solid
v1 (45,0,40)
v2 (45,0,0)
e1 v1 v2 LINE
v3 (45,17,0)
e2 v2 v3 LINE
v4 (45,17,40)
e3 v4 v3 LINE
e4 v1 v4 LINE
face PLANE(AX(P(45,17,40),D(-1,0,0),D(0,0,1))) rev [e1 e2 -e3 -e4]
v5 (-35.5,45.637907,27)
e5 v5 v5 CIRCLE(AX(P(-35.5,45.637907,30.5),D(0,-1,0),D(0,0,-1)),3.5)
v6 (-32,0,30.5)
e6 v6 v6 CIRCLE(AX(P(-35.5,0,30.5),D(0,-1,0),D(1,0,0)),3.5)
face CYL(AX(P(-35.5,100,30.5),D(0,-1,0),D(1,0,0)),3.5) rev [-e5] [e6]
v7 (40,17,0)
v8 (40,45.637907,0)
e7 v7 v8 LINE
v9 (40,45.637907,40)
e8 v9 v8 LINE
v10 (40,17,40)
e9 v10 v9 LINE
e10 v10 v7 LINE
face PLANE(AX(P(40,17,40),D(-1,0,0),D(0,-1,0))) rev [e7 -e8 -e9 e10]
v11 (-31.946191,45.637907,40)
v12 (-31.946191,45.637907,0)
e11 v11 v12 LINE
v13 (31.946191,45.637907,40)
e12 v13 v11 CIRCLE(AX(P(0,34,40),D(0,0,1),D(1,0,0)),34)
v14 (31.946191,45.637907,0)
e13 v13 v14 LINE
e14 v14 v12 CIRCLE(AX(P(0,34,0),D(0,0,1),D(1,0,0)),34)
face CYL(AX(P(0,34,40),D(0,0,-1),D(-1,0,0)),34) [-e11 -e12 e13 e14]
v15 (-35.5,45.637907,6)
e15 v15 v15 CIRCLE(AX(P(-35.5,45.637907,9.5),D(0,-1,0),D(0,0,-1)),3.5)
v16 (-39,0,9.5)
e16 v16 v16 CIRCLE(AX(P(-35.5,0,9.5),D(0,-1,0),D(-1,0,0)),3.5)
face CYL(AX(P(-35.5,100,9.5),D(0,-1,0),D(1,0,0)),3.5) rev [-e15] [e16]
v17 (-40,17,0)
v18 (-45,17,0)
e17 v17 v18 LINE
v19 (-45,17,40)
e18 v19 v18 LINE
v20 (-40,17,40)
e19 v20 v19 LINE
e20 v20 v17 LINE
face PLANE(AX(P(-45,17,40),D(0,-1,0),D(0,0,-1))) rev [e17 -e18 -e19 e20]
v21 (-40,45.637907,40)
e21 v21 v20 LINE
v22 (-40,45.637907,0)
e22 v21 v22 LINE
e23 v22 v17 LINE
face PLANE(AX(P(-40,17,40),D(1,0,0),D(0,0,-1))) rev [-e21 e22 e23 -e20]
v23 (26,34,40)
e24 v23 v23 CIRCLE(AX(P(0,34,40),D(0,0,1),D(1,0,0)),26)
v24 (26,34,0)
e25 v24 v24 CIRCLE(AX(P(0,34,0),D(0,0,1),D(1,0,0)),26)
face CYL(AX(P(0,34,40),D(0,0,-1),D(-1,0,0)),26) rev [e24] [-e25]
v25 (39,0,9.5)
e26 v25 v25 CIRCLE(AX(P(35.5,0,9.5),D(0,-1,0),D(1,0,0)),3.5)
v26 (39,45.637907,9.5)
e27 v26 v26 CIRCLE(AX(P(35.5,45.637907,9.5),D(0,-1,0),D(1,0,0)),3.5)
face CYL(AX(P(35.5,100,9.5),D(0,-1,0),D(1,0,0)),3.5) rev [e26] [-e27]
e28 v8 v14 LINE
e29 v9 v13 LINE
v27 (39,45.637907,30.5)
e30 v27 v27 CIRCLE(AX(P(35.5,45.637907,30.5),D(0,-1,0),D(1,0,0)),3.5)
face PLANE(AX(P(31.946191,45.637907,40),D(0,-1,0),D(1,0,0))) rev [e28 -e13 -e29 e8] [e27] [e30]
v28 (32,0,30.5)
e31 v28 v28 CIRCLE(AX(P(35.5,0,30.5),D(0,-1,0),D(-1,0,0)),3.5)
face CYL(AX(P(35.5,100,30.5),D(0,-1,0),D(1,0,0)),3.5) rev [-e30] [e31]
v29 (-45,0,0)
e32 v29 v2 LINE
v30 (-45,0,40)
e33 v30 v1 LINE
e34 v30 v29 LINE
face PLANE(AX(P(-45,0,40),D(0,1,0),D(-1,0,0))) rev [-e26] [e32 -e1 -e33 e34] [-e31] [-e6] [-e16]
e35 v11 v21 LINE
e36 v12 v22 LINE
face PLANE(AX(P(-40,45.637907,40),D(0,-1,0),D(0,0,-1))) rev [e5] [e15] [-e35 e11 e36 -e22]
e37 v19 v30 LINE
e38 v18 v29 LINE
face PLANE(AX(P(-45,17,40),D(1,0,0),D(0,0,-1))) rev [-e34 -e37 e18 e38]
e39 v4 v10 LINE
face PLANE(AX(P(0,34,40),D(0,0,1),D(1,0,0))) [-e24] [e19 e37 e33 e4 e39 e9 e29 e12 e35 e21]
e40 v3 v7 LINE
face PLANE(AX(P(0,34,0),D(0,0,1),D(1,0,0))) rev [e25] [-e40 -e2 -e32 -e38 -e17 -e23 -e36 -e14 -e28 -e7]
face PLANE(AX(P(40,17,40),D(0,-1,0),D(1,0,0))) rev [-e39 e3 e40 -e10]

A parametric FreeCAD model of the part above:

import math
import FreeCAD as App
import Part
import Sketcher

doc = App.newDocument("Part")
body = doc.addObject("PartDesign::Body", "Body")

# Sketch on XY plane
sketch1 = doc.addObject("Sketcher::SketchObject", "Sketch")
body.addObject(sketch1)
sketch1.AttachmentSupport = (doc.XY_Plane, [""])
sketch1.MapMode = "FlatFace"
sketch1.addGeometry([
    Part.LineSegment(App.Vector(45, 17, 0), App.Vector(40, 17, 0)),  # 0
    Part.LineSegment(App.Vector(40, 17, 0), App.Vector(40, 46, 0)),  # 1
    Part.LineSegment(App.Vector(40, 46, 0), App.Vector(32, 46, 0)),  # 2
    Part.ArcOfCircle(Part.Circle(App.Vector(0, 34, 0), App.Vector(0, 0, 1), 34), math.radians(20), math.radians(160)),  # 3
    Part.LineSegment(App.Vector(-32, 46, 0), App.Vector(-40, 46, 0)),  # 4
    Part.LineSegment(App.Vector(-40, 46, 0), App.Vector(-40, 17, 0)),  # 5
    Part.LineSegment(App.Vector(-40, 17, 0), App.Vector(-45, 17, 0)),  # 6
    Part.LineSegment(App.Vector(-45, 17, 0), App.Vector(-45, 0, 0)),  # 7
    Part.LineSegment(App.Vector(-45, 0, 0), App.Vector(45, 0, 0)),  # 8
    Part.LineSegment(App.Vector(45, 0, 0), App.Vector(45, 17, 0)),  # 9
    Part.Circle(App.Vector(0, 34, 0), App.Vector(0, 0, 1), 26),  # 10
], False)
sketch1.addConstraint([
    Sketcher.Constraint("Coincident", 0, 2, 1, 1),
    Sketcher.Constraint("Coincident", 1, 2, 2, 1),
    Sketcher.Constraint("Coincident", 2, 2, 3, 1),
    Sketcher.Constraint("Coincident", 3, 2, 4, 1),
    Sketcher.Constraint("Coincident", 4, 2, 5, 1),
    Sketcher.Constraint("Coincident", 5, 2, 6, 1),
    Sketcher.Constraint("Coincident", 6, 2, 7, 1),
    Sketcher.Constraint("Coincident", 7, 2, 8, 1),
    Sketcher.Constraint("Coincident", 8, 2, 9, 1),
    Sketcher.Constraint("Coincident", 9, 2, 0, 1),
    Sketcher.Constraint("Horizontal", 0),
    Sketcher.Constraint("Vertical", 1),
    Sketcher.Constraint("Horizontal", 2),
    Sketcher.Constraint("Horizontal", 4),
    Sketcher.Constraint("Vertical", 5),
    Sketcher.Constraint("Horizontal", 6),
    Sketcher.Constraint("Vertical", 7),
    Sketcher.Constraint("Horizontal", 8),
    Sketcher.Constraint("Vertical", 9),
    Sketcher.Constraint("Coincident", 10, 3, 3, 3),
    Sketcher.Constraint("Symmetric", 7, 2, 8, 2, -1, 1),
    Sketcher.Constraint("Symmetric", 2, 2, 3, 2, -2),
    Sketcher.Constraint("Symmetric", 0, 2, 5, 2, -2),
    Sketcher.Constraint("Diameter", 10, 52.0),
    Sketcher.Constraint("Radius", 3, 34.0),
    Sketcher.Constraint("DistanceX", 0, 2, 0, 1, 5.0),
    Sketcher.Constraint("DistanceX", 8, 1, 8, 2, 90.0),
    Sketcher.Constraint("DistanceY", 7, 2, 7, 1, 17.0),
    Sketcher.Constraint("DistanceY", -1, 1, 3, 3, 34.0),
    Sketcher.Constraint("DistanceX", 2, 2, 2, 1, 8.053809),
])
pad1 = doc.addObject("PartDesign::Pad", "Pad")
body.addObject(pad1)
pad1.Profile = sketch1
pad1.Length = 40

# Sketch on XZ plane
sketch2 = doc.addObject("Sketcher::SketchObject", "Sketch001")
body.addObject(sketch2)
sketch2.AttachmentSupport = (doc.XZ_Plane, [""])
sketch2.MapMode = "FlatFace"
sketch2.addGeometry([
    Part.Circle(App.Vector(-35.5, 30.5, 0), App.Vector(0, 0, 1), 3.5),
    Part.Circle(App.Vector(-35.5, 9.5, 0), App.Vector(0, 0, 1), 3.5),
    Part.Circle(App.Vector(35.5, 30.5, 0), App.Vector(0, 0, 1), 3.5),
    Part.Circle(App.Vector(35.5, 9.5, 0), App.Vector(0, 0, 1), 3.5),
], False)
sketch2.addConstraint([
    Sketcher.Constraint("Equal", 0, 1),
    Sketcher.Constraint("Equal", 1, 2),
    Sketcher.Constraint("Equal", 2, 3),
    Sketcher.Constraint("Symmetric", 0, 3, 2, 3, -2),
    Sketcher.Constraint("Symmetric", 1, 3, 3, 3, -2),
    Sketcher.Constraint("Vertical", 0, 3, 1, 3),
    Sketcher.Constraint("Diameter", 0, 7.0),
    Sketcher.Constraint("DistanceY", 1, 3, 0, 3, 21.0),
    Sketcher.Constraint("DistanceX", 0, 3, 2, 3, 71.0),
    Sketcher.Constraint("DistanceY", -1, 1, 0, 3, 30.5),
])
pocket1 = doc.addObject("PartDesign::Pocket", "Pocket")
body.addObject(pocket1)
pocket1.Profile = sketch2
pocket1.Length = 100

doc.recompute()
